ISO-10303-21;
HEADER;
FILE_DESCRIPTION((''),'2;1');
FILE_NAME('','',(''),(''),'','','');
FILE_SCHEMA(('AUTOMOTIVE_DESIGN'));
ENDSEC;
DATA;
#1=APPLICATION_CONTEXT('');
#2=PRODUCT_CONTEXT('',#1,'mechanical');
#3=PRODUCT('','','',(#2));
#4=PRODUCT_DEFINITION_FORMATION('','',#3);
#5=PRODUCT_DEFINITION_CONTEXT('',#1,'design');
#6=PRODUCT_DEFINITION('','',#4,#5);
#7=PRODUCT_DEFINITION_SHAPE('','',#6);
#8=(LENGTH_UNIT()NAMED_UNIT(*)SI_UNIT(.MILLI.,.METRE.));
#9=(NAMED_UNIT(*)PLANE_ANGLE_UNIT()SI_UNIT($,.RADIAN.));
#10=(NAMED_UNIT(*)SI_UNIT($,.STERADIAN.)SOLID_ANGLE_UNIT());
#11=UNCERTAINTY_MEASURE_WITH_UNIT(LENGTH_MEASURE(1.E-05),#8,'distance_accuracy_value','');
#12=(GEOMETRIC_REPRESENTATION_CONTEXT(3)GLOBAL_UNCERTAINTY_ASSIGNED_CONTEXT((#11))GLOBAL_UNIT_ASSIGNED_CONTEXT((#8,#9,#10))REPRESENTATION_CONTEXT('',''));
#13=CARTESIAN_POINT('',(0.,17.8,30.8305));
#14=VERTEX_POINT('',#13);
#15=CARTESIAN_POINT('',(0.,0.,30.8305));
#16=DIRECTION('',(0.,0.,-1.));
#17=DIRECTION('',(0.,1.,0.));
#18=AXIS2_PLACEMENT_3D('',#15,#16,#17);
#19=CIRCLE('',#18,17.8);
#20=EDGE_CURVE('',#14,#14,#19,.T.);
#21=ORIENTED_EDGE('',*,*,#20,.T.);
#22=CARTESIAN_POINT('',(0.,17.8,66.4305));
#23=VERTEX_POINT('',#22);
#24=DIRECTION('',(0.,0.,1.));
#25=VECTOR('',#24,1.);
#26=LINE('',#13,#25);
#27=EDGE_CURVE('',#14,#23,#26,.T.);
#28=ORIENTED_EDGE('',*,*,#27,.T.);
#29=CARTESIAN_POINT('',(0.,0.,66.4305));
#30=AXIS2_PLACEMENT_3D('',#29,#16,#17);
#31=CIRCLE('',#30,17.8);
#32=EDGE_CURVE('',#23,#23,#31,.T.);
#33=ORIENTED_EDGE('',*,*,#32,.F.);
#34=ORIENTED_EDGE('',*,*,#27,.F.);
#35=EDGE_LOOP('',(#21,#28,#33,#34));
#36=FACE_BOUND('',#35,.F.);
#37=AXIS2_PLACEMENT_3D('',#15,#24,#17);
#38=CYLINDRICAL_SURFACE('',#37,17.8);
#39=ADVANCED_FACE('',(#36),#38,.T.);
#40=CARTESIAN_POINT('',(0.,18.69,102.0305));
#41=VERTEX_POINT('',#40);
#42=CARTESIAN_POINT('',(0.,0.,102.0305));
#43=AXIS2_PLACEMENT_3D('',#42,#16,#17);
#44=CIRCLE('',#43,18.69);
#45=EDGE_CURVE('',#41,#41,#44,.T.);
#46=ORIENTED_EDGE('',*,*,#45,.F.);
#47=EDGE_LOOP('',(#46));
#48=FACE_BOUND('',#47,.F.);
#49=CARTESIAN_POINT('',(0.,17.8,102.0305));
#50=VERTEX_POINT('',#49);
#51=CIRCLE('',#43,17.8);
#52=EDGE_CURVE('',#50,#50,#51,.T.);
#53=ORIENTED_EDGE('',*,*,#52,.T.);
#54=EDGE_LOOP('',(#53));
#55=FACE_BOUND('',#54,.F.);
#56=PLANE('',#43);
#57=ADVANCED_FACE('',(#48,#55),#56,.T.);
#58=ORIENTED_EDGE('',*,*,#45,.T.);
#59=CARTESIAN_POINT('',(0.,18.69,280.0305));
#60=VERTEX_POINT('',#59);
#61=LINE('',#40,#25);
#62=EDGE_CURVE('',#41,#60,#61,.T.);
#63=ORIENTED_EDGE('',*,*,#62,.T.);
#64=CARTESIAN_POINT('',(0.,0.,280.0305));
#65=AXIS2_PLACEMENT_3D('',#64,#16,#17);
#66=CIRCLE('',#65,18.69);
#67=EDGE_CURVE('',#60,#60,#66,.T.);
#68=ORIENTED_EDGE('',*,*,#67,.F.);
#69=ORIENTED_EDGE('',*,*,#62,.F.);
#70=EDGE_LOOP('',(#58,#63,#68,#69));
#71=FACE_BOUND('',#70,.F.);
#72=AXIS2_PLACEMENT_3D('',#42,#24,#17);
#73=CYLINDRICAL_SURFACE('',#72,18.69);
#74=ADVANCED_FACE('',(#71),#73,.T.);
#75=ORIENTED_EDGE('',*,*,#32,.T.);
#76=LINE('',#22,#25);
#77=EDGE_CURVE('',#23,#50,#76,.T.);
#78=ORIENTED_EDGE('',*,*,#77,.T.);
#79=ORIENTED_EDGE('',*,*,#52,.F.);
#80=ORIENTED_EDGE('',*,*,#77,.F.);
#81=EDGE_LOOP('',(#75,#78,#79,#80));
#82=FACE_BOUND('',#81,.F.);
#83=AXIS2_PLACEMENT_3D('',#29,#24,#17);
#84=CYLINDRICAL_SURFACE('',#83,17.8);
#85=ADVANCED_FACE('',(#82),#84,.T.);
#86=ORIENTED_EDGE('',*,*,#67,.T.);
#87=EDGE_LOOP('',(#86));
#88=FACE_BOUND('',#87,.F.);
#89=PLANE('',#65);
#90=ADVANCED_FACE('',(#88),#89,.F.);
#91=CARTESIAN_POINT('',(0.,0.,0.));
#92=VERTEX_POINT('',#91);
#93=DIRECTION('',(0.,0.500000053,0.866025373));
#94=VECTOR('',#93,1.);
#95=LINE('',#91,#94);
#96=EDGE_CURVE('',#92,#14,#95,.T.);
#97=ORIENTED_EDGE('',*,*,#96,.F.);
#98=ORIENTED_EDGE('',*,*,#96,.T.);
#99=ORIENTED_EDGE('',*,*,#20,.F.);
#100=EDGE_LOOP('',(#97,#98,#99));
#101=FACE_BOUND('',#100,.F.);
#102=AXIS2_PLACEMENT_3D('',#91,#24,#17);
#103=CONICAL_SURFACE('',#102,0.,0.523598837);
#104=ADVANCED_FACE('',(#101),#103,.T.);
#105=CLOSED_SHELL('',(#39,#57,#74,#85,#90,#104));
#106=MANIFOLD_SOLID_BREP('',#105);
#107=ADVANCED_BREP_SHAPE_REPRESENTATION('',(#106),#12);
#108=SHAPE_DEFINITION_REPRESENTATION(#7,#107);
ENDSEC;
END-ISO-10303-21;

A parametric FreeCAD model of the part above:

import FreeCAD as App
import Part
import Sketcher
Q = App.Units.Quantity

doc = App.newDocument("Part")
body = doc.addObject("PartDesign::Body", "Body")

# Sketch on YZ plane
sketch1 = body.newObject("Sketcher::SketchObject", "Sketch")
sketch1.AttachmentSupport = (doc.getObject("YZ_Plane"), [""])
sketch1.MapMode = "FlatFace"
sketch1.addGeometry(Part.LineSegment(App.Vector(0, 280, 0), App.Vector(0, 0, 0)), False)
sketch1.addGeometry(Part.LineSegment(App.Vector(0, 0, 0), App.Vector(17.8, 30.8, 0)), False)
sketch1.addGeometry(Part.LineSegment(App.Vector(17.8, 30.8, 0), App.Vector(17.8, 102, 0)), False)
sketch1.addGeometry(Part.LineSegment(App.Vector(17.8, 102, 0), App.Vector(18.7, 102, 0)), False)
sketch1.addGeometry(Part.LineSegment(App.Vector(18.7, 102, 0), App.Vector(18.7, 280, 0)), False)
sketch1.addGeometry(Part.LineSegment(App.Vector(18.7, 280, 0), App.Vector(0, 280, 0)), False)
sketch1.addConstraint(Sketcher.Constraint("Coincident", 0, 2, 1, 1))
sketch1.addConstraint(Sketcher.Constraint("Coincident", 1, 2, 2, 1))
sketch1.addConstraint(Sketcher.Constraint("Coincident", 2, 2, 3, 1))
sketch1.addConstraint(Sketcher.Constraint("Coincident", 3, 2, 4, 1))
sketch1.addConstraint(Sketcher.Constraint("Coincident", 4, 2, 5, 1))
sketch1.addConstraint(Sketcher.Constraint("Coincident", 5, 2, 0, 1))
sketch1.addConstraint(Sketcher.Constraint("Vertical", 0))
sketch1.addConstraint(Sketcher.Constraint("Vertical", 2))
sketch1.addConstraint(Sketcher.Constraint("Horizontal", 3))
sketch1.addConstraint(Sketcher.Constraint("Vertical", 4))
sketch1.addConstraint(Sketcher.Constraint("Horizontal", 5))
sketch1.addConstraint(Sketcher.Constraint("Coincident", 0, 2, -1, 1))
sketch1.addConstraint(Sketcher.Constraint("DistanceY", 4, 1, 4, 2, 178.0))
sketch1.addConstraint(Sketcher.Constraint("Angle", 1, Q("60 deg")))
sketch1.addConstraint(Sketcher.Constraint("Distance", 1, 35.6))
sketch1.addConstraint(Sketcher.Constraint("DistanceY", 2, 1, 2, 2, 71.2))
sketch1.addConstraint(Sketcher.Constraint("DistanceX", 3, 1, 3, 2, 0.89))
revolution = body.newObject("PartDesign::Revolution", "Revolution")
revolution.Profile = sketch1
revolution.ReferenceAxis = (sketch1, ["V_Axis"])
revolution.Angle = 360

doc.recompute()
